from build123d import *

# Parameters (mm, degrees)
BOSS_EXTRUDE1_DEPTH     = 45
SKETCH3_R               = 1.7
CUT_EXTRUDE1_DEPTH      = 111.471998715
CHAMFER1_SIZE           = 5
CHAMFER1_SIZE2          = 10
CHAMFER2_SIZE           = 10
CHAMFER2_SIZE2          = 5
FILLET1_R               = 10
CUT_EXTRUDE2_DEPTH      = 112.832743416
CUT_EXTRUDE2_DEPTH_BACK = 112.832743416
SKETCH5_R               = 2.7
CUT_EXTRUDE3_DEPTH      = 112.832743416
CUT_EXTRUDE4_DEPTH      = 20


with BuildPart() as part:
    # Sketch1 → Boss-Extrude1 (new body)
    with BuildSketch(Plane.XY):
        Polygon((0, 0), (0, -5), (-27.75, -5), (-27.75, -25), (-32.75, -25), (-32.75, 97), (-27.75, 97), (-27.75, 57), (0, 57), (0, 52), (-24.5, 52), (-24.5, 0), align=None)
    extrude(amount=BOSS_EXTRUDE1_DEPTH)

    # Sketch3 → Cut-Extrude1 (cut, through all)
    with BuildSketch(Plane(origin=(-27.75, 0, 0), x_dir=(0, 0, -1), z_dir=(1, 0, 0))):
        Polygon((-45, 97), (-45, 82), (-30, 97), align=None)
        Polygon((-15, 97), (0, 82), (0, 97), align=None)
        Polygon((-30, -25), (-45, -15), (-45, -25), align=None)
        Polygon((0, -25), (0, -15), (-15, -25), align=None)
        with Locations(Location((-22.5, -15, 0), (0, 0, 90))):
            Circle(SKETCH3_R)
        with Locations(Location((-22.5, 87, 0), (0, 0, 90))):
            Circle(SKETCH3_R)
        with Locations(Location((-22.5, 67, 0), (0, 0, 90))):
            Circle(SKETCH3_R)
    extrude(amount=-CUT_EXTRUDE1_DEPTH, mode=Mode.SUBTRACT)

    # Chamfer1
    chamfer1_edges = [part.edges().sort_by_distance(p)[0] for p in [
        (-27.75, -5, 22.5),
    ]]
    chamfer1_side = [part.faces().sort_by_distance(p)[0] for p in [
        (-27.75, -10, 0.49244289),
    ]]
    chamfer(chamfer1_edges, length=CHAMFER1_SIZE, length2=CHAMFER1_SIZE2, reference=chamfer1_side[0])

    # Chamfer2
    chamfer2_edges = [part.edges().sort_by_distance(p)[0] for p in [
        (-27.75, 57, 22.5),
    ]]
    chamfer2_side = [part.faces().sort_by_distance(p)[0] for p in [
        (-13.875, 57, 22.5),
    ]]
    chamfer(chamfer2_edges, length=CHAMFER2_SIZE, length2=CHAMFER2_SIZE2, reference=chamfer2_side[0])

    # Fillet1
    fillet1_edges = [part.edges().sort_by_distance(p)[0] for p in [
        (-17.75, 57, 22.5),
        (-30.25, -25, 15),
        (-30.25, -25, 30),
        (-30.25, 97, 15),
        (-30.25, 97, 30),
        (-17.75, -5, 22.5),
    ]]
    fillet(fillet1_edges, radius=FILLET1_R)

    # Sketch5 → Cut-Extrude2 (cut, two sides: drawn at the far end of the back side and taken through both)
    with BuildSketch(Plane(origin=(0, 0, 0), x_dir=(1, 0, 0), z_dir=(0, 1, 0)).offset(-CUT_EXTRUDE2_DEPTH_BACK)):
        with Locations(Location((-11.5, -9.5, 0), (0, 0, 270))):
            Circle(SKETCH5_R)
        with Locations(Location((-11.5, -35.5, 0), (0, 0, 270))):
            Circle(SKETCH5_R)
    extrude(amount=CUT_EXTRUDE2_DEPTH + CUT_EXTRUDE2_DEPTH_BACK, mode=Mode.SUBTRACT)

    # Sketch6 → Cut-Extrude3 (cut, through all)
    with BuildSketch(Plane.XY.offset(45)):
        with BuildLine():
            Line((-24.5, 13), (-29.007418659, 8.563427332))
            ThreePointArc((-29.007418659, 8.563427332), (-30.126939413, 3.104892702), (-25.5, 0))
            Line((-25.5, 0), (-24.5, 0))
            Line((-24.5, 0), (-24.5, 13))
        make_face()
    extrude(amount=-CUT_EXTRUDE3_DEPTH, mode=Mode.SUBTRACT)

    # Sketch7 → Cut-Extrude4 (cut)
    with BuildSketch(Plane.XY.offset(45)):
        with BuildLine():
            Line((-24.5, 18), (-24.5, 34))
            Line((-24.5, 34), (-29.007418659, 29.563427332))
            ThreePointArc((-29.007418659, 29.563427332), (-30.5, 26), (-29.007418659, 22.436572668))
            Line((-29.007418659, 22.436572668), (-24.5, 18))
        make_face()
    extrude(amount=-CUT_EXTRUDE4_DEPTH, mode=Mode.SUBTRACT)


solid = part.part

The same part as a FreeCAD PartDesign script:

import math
import FreeCAD as App
import Part
import Sketcher

V = App.Vector
Q = App.Units.Quantity


def edges_at(feature, points):
    """Names of the edges that pass closest to the given points."""
    edges = feature.Shape.Edges
    near = lambda p: min(range(len(edges)), key=lambda i: edges[i].distToShape(Part.Vertex(*p))[0])
    return sorted({f"Edge{near(p) + 1}" for p in points})


def add_polygon(sketch, points):
    """Adds a closed chain of lines whose ends are joined by coincident constraints."""
    first, n = sketch.GeometryCount, len(points)
    for a, b in zip(points, points[1:] + points[:1]):
        sketch.addGeometry(Part.LineSegment(App.Vector(*a, 0), App.Vector(*b, 0)), False)
    for i in range(n):
        sketch.addConstraint(Sketcher.Constraint("Coincident", first + i, 2, first + (i + 1) % n, 1))

doc = App.newDocument("Part")
body = doc.addObject("PartDesign::Body", "Body")

# Sketch on XY plane
sketch1 = body.newObject("Sketcher::SketchObject", "Sketch")
sketch1.AttachmentSupport = (doc.getObject("XY_Plane"), [""])
sketch1.MapMode = "FlatFace"
add_polygon(sketch1, [(0, -5), (0, 0), (-24, 0), (-24, 52), (0, 52), (0, 57), (-28, 57), (-28, 97), (-33, 97), (-33, -25), (-28, -25), (-28, -5)])  # lines 0-11
sketch1.addConstraint(Sketcher.Constraint("Vertical", 0))
sketch1.addConstraint(Sketcher.Constraint("Horizontal", 1))
sketch1.addConstraint(Sketcher.Constraint("Vertical", 2))
sketch1.addConstraint(Sketcher.Constraint("Horizontal", 3))
sketch1.addConstraint(Sketcher.Constraint("Vertical", 4))
sketch1.addConstraint(Sketcher.Constraint("Horizontal", 5))
sketch1.addConstraint(Sketcher.Constraint("Vertical", 6))
sketch1.addConstraint(Sketcher.Constraint("Horizontal", 7))
sketch1.addConstraint(Sketcher.Constraint("Vertical", 8))
sketch1.addConstraint(Sketcher.Constraint("Horizontal", 9))
sketch1.addConstraint(Sketcher.Constraint("Vertical", 10))
sketch1.addConstraint(Sketcher.Constraint("Horizontal", 11))
sketch1.addConstraint(Sketcher.Constraint("Coincident", 0, 2, -1, 1))
sketch1.addConstraint(Sketcher.Constraint("PointOnObject", 3, 2, -2))
sketch1.addConstraint(Sketcher.Constraint("Vertical", 6, 2, 9, 2))
sketch1.addConstraint(Sketcher.Constraint("Equal", 9, 0))
sketch1.addConstraint(Sketcher.Constraint("Equal", 0, 4))
sketch1.addConstraint(Sketcher.Constraint("DistanceX", 7, 2, 7, 1, Q("5 mm")))
sketch1.addConstraint(Sketcher.Constraint("DistanceY", 2, 1, 2, 2, Q("52 mm")))
sketch1.addConstraint(Sketcher.Constraint("DistanceY", 6, 1, 6, 2, Q("40 mm")))
sketch1.addConstraint(Sketcher.Constraint("DistanceY", 8, 2, 8, 1, Q("122 mm")))
sketch1.addConstraint(Sketcher.Constraint("DistanceX", 1, 2, 1, 1, Q("24.5 mm")))
sketch1.addConstraint(Sketcher.Constraint("DistanceX", 5, 2, 5, 1, Q("27.75 mm")))
pad1 = body.newObject("PartDesign::Pad", "Pad")
pad1.Profile = sketch1
pad1.Length = 45

# Sketch on YZ plane
sketch2 = body.newObject("Sketcher::SketchObject", "Sketch001")
sketch2.AttachmentSupport = (doc.getObject("YZ_Plane"), [""])
sketch2.MapMode = "FlatFace"
sketch2.AttachmentOffset = App.Placement(V(0, 0, -27.75), App.Rotation())
add_polygon(sketch2, [(97, 45), (82, 45), (97, 30)])  # lines 0-2
add_polygon(sketch2, [(97, 15), (82, 0), (97, 0)])  # lines 3-5
add_polygon(sketch2, [(-25, 30), (-15, 45), (-25, 45)])  # lines 6-8
add_polygon(sketch2, [(-25, 0), (-15, 0), (-25, 15)])  # lines 9-11
sketch2.addGeometry(Part.Circle(V(-15, 22.5, 0), V(0, 0, 1), 1.7), False)  # 12
sketch2.addGeometry(Part.Circle(V(87, 22.5, 0), V(0, 0, 1), 1.7), False)  # 13
sketch2.addGeometry(Part.Circle(V(67, 22.5, 0), V(0, 0, 1), 1.7), False)  # 14
sketch2.addConstraint(Sketcher.Constraint("Horizontal", 0))
sketch2.addConstraint(Sketcher.Constraint("Vertical", 2))
sketch2.addConstraint(Sketcher.Constraint("Horizontal", 4))
sketch2.addConstraint(Sketcher.Constraint("Vertical", 5))
sketch2.addConstraint(Sketcher.Constraint("Horizontal", 7))
sketch2.addConstraint(Sketcher.Constraint("Vertical", 8))
sketch2.addConstraint(Sketcher.Constraint("Horizontal", 9))
sketch2.addConstraint(Sketcher.Constraint("Vertical", 11))
sketch2.addConstraint(Sketcher.Constraint("Equal", 12, 13))
sketch2.addConstraint(Sketcher.Constraint("Equal", 13, 14))
sketch2.addConstraint(Sketcher.Constraint("PointOnObject", 3, 2, -1))
sketch2.addConstraint(Sketcher.Constraint("PointOnObject", 9, 2, -1))
sketch2.addConstraint(Sketcher.Constraint("Perpendicular", 1, 3))
sketch2.addConstraint(Sketcher.Constraint("Horizontal", 12, 3, 13, 3))
sketch2.addConstraint(Sketcher.Constraint("Horizontal", 13, 3, 14, 3))
sketch2.addConstraint(Sketcher.Constraint("Horizontal", 2, 2, 6, 2))
sketch2.addConstraint(Sketcher.Constraint("Horizontal", 1, 2, 8, 2))
sketch2.addConstraint(Sketcher.Constraint("Horizontal", 5, 2, 10, 2))
sketch2.addConstraint(Sketcher.Constraint("Vertical", 0, 2, 3, 2))
sketch2.addConstraint(Sketcher.Constraint("Vertical", 2, 2, 4, 2))
sketch2.addConstraint(Sketcher.Constraint("Vertical", 12, 3, 6, 2))
sketch2.addConstraint(Sketcher.Constraint("Vertical", 6, 2, 9, 2))
sketch2.addConstraint(Sketcher.Constraint("Vertical", 8, 2, 10, 2))
sketch2.addConstraint(Sketcher.Constraint("Equal", 4, 2))
sketch2.addConstraint(Sketcher.Constraint("Diameter", 12, Q("3.4 mm")))
sketch2.addConstraint(Sketcher.Constraint("DistanceX", 0, 2, 0, 1, Q("15 mm")))
sketch2.addConstraint(Sketcher.Constraint("DistanceX", 7, 2, 7, 1, Q("10 mm")))
sketch2.addConstraint(Sketcher.Constraint("DistanceX", 12, 3, -1, 1, Q("15 mm")))
sketch2.addConstraint(Sketcher.Constraint("DistanceX", -1, 1, 13, 3, Q("87 mm")))
sketch2.addConstraint(Sketcher.Constraint("DistanceX", -1, 1, 14, 3, Q("67 mm")))
sketch2.addConstraint(Sketcher.Constraint("DistanceX", -1, 1, 0, 2, Q("82 mm")))
sketch2.addConstraint(Sketcher.Constraint("DistanceY", -1, 1, 0, 2, Q("45 mm")))
sketch2.addConstraint(Sketcher.Constraint("DistanceY", -1, 1, 12, 3, Q("22.5 mm")))
pocket1 = body.newObject("PartDesign::Pocket", "Pocket")
pocket1.Profile = sketch2
pocket1.Type = "ThroughAll"
doc.recompute()

chamfer = body.newObject("PartDesign::Chamfer", "Chamfer")
chamfer.Base = (pocket1, edges_at(pocket1, [(-27.75, -5, 22.5)]))
chamfer.ChamferType = "Two distances"
chamfer.Size = 5
chamfer.Size2 = 10
chamfer.FlipDirection = True
doc.recompute()

chamfer2 = body.newObject("PartDesign::Chamfer", "Chamfer001")
chamfer2.Base = (chamfer, edges_at(chamfer, [(-27.75, 57, 22.5)]))
chamfer2.ChamferType = "Two distances"
chamfer2.Size = 10
chamfer2.Size2 = 5
chamfer2.FlipDirection = True
doc.recompute()

fillet = body.newObject("PartDesign::Fillet", "Fillet")
fillet.Base = (chamfer2, edges_at(chamfer2, [
    (-17.75, 57, 22.5),
    (-30.25, -25, 15),
    (-30.25, -25, 30),
    (-30.25, 97, 15),
    (-30.25, 97, 30),
    (-17.75, -5, 22.5),
]))
fillet.Radius = 10

# Sketch on XZ plane
sketch3 = body.newObject("Sketcher::SketchObject", "Sketch002")
sketch3.AttachmentSupport = (doc.getObject("XZ_Plane"), [""])
sketch3.MapMode = "FlatFace"
sketch3.addGeometry(Part.Circle(V(-11.5, 9.5, 0), V(0, 0, 1), 2.7), False)
sketch3.addGeometry(Part.Circle(V(-11.5, 35.5, 0), V(0, 0, 1), 2.7), False)
sketch3.addConstraint(Sketcher.Constraint("Equal", 0, 1))
sketch3.addConstraint(Sketcher.Constraint("Vertical", 0, 3, 1, 3))
sketch3.addConstraint(Sketcher.Constraint("Diameter", 0, Q("5.4 mm")))
sketch3.addConstraint(Sketcher.Constraint("DistanceY", 0, 3, 1, 3, Q("26 mm")))
sketch3.addConstraint(Sketcher.Constraint("DistanceX", 0, 3, -1, 1, Q("11.5 mm")))
sketch3.addConstraint(Sketcher.Constraint("DistanceY", -1, 1, 0, 3, Q("9.5 mm")))
pocket2 = body.newObject("PartDesign::Pocket", "Pocket001")
pocket2.Profile = sketch3
pocket2.Type = "ThroughAll"
pocket2.Midplane = True

# Sketch on XY plane
sketch4 = body.newObject("Sketcher::SketchObject", "Sketch003")
sketch4.AttachmentSupport = (doc.getObject("XY_Plane"), [""])
sketch4.MapMode = "FlatFace"
sketch4.AttachmentOffset = App.Placement(V(0, 0, 45), App.Rotation())
sketch4.addGeometry(Part.LineSegment(V(-24.5, 13, 0), V(-29, 8.6, 0)), False)
sketch4.addGeometry(Part.ArcOfCircle(Part.Circle(V(-25.5, 5, 0), V(0, 0, 1), 5), math.radians(135), math.radians(270)), False)
sketch4.addGeometry(Part.LineSegment(V(-25.5, 0, 0), V(-24.5, 0, 0)), False)
sketch4.addGeometry(Part.LineSegment(V(-24.5, 0, 0), V(-24.5, 13, 0)), False)
sketch4.addConstraint(Sketcher.Constraint("Tangent", 0, 2, 1, 1))
sketch4.addConstraint(Sketcher.Constraint("Tangent", 1, 2, 2, 1))
sketch4.addConstraint(Sketcher.Constraint("Coincident", 2, 2, 3, 1))
sketch4.addConstraint(Sketcher.Constraint("Coincident", 3, 2, 0, 1))
sketch4.addConstraint(Sketcher.Constraint("Horizontal", 2))
sketch4.addConstraint(Sketcher.Constraint("Vertical", 3))
sketch4.addConstraint(Sketcher.Constraint("PointOnObject", 1, 2, -1))
sketch4.addConstraint(Sketcher.Constraint("Radius", 1, Q("5 mm")))
sketch4.addConstraint(Sketcher.Constraint("DistanceX", 2, 1, 2, 2, Q("1 mm")))
sketch4.addConstraint(Sketcher.Constraint("DistanceY", 3, 1, 3, 2, Q("13 mm")))
sketch4.addConstraint(Sketcher.Constraint("DistanceX", 1, 3, -1, 1, Q("25.5 mm")))
pocket3 = body.newObject("PartDesign::Pocket", "Pocket002")
pocket3.Profile = sketch4
pocket3.Type = "ThroughAll"

# Sketch on XY plane
sketch5 = body.newObject("Sketcher::SketchObject", "Sketch004")
sketch5.AttachmentSupport = (doc.getObject("XY_Plane"), [""])
sketch5.MapMode = "FlatFace"
sketch5.AttachmentOffset = App.Placement(V(0, 0, 45), App.Rotation())
sketch5.addGeometry(Part.LineSegment(V(-24, 18, 0), V(-24, 34, 0)), False)
sketch5.addGeometry(Part.LineSegment(V(-24, 34, 0), V(-29, 30, 0)), False)
sketch5.addGeometry(Part.ArcOfCircle(Part.Circle(V(-26, 26, 0), V(0, 0, 1), 5), math.radians(135), math.radians(225)), False)
sketch5.addGeometry(Part.LineSegment(V(-29, 22, 0), V(-24, 18, 0)), False)
sketch5.addConstraint(Sketcher.Constraint("Coincident", 0, 2, 1, 1))
sketch5.addConstraint(Sketcher.Constraint("Tangent", 1, 2, 2, 1))
sketch5.addConstraint(Sketcher.Constraint("Tangent", 2, 2, 3, 1))
sketch5.addConstraint(Sketcher.Constraint("Coincident", 3, 2, 0, 1))
sketch5.addConstraint(Sketcher.Constraint("Vertical", 0))
sketch5.addConstraint(Sketcher.Constraint("Vertical", 1, 2, 2, 2))
sketch5.addConstraint(Sketcher.Constraint("Radius", 2, Q("5 mm")))
sketch5.addConstraint(Sketcher.Constraint("DistanceY", 0, 1, 0, 2, Q("16 mm")))
sketch5.addConstraint(Sketcher.Constraint("DistanceY", -1, 1, 2, 3, Q("26 mm")))
sketch5.addConstraint(Sketcher.Constraint("DistanceX", 2, 3, 0, 2, Q("1 mm")))
sketch5.addConstraint(Sketcher.Constraint("DistanceX", 2, 3, -1, 1, Q("25.5 mm")))
pocket4 = body.newObject("PartDesign::Pocket", "Pocket003")
pocket4.Profile = sketch5
pocket4.Length = 20

doc.recompute()
